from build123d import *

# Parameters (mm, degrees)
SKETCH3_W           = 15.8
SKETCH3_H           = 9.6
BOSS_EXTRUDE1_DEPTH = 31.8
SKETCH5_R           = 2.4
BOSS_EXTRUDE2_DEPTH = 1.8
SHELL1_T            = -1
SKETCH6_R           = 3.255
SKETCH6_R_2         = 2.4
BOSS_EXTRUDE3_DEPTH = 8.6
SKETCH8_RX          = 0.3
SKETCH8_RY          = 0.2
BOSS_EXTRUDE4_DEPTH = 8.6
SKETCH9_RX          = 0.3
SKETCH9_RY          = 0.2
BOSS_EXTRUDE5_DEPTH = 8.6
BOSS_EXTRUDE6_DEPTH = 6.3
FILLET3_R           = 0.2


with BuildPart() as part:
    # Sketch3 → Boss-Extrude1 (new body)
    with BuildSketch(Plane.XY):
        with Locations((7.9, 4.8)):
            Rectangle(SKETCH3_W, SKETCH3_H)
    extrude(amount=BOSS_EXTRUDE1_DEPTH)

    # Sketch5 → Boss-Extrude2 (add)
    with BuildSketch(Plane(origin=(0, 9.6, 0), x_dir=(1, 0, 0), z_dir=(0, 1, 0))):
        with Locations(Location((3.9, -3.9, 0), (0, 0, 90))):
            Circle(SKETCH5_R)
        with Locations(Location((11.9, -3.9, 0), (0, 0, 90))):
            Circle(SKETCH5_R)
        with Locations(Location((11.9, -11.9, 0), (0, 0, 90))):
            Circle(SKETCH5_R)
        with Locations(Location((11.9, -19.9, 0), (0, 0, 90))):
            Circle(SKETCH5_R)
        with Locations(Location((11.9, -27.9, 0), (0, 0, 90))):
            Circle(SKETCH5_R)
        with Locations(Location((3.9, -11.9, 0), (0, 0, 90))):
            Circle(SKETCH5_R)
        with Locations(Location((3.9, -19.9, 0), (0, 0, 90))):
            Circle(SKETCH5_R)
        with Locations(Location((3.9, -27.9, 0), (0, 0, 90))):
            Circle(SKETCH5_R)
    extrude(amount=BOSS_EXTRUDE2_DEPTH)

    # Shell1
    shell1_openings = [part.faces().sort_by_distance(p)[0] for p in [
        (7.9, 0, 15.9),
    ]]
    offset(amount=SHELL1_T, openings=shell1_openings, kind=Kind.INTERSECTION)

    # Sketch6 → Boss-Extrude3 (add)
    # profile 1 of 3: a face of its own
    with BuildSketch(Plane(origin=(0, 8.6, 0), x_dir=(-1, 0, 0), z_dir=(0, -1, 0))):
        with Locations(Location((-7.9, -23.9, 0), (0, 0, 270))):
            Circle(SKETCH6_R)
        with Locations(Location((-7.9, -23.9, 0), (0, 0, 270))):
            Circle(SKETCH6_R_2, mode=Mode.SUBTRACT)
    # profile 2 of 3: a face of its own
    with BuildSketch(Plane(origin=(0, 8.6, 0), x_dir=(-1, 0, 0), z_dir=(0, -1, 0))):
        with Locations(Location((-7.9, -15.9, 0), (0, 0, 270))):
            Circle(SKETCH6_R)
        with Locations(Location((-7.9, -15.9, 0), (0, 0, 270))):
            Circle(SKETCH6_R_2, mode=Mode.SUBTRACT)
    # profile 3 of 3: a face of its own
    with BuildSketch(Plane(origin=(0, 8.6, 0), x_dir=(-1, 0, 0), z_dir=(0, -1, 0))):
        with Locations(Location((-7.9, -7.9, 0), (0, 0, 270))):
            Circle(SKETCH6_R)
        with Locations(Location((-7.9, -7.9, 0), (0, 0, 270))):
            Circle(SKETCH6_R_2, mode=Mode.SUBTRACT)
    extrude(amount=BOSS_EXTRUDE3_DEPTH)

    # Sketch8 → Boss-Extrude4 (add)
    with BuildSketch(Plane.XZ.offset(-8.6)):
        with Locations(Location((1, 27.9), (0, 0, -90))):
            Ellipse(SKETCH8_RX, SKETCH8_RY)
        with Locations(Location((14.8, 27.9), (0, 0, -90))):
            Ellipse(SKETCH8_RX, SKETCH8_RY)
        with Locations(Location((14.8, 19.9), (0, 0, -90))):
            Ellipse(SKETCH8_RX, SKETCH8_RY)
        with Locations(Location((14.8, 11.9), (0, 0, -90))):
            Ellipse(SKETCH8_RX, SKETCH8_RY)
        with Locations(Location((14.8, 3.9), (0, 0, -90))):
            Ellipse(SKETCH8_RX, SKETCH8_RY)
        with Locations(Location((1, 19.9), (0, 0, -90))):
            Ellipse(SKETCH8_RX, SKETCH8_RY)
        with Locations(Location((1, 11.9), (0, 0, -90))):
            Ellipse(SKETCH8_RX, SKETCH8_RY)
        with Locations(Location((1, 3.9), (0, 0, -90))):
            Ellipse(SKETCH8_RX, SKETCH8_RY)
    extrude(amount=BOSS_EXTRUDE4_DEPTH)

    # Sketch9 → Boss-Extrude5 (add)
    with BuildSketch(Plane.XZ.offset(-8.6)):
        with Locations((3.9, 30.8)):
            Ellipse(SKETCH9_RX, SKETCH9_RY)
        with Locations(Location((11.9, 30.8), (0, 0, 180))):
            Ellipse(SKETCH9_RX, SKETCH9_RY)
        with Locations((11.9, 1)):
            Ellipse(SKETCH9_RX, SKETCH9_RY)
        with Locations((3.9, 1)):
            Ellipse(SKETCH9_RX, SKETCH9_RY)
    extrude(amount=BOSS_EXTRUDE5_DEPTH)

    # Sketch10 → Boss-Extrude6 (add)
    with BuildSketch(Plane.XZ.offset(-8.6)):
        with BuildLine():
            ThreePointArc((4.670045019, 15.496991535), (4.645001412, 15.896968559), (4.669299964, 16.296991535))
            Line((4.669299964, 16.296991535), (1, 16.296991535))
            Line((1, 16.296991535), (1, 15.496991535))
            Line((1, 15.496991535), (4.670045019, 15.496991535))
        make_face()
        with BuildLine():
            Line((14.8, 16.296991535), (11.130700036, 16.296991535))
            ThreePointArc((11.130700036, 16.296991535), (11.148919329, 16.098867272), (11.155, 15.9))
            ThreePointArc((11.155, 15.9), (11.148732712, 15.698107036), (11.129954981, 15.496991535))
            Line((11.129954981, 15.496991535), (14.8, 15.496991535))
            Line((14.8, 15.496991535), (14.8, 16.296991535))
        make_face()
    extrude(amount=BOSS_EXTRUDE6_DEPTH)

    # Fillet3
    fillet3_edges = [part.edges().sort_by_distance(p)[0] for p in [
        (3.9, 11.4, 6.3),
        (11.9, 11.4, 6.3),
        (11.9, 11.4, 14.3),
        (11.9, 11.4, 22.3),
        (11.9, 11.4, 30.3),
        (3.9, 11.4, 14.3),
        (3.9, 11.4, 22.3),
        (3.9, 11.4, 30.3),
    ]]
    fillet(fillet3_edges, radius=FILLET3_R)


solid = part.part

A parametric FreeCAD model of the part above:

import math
import FreeCAD as App
import Part
import Sketcher

V = App.Vector
Q = App.Units.Quantity


def edges_at(feature, points):
    """Names of the edges that pass closest to the given points."""
    edges = feature.Shape.Edges
    near = lambda p: min(range(len(edges)), key=lambda i: edges[i].distToShape(Part.Vertex(*p))[0])
    return sorted({f"Edge{near(p) + 1}" for p in points})


def faces_at(feature, points):
    """Names of the faces that lie closest to the given points."""
    faces = feature.Shape.Faces
    near = lambda p: min(range(len(faces)), key=lambda i: faces[i].distToShape(Part.Vertex(*p))[0])
    return sorted({f"Face{near(p) + 1}" for p in points})

doc = App.newDocument("Part")
body = doc.addObject("PartDesign::Body", "Body")

sketch1 = body.newObject("Sketcher::SketchObject", "Sketch")
sketch1.AttachmentSupport = (doc.getObject("XY_Plane"), [""])
sketch1.MapMode = "FlatFace"
sketch1.addGeometry(Part.LineSegment(V(0, 10, 0), V(0, 0, 0)), False)
sketch1.addGeometry(Part.LineSegment(V(0, 0, 0), V(16, 0, 0)), False)
sketch1.addGeometry(Part.LineSegment(V(16, 0, 0), V(16, 10, 0)), False)
sketch1.addGeometry(Part.LineSegment(V(16, 10, 0), V(0, 10, 0)), False)
sketch1.addConstraint(Sketcher.Constraint("Coincident", 0, 2, 1, 1))
sketch1.addConstraint(Sketcher.Constraint("Coincident", 1, 2, 2, 1))
sketch1.addConstraint(Sketcher.Constraint("Coincident", 2, 2, 3, 1))
sketch1.addConstraint(Sketcher.Constraint("Coincident", 3, 2, 0, 1))
sketch1.addConstraint(Sketcher.Constraint("Vertical", 0))
sketch1.addConstraint(Sketcher.Constraint("Horizontal", 1))
sketch1.addConstraint(Sketcher.Constraint("Vertical", 2))
sketch1.addConstraint(Sketcher.Constraint("Horizontal", 3))
sketch1.addConstraint(Sketcher.Constraint("Coincident", 0, 2, -1, 1))
sketch1.addConstraint(Sketcher.Constraint("DistanceX", 1, 1, 1, 2, Q("15.8 mm")))
sketch1.addConstraint(Sketcher.Constraint("DistanceY", 0, 2, 0, 1, Q("9.6 mm")))
pad1 = body.newObject("PartDesign::Pad", "Pad")
pad1.Profile = sketch1
pad1.Length = 31.8

sketch2 = body.newObject("Sketcher::SketchObject", "Sketch001")
sketch2.AttachmentSupport = (doc.getObject("XZ_Plane"), [""])
sketch2.MapMode = "FlatFace"
sketch2.AttachmentOffset = App.Placement(V(0, 0, -9.6), App.Rotation())
sketch2.addGeometry(Part.Circle(V(3.9, 3.9, 0), V(0, 0, 1), 2.4), False)
sketch2.addGeometry(Part.Circle(V(11.9, 3.9, 0), V(0, 0, 1), 2.4), False)
sketch2.addGeometry(Part.Circle(V(11.9, 11.9, 0), V(0, 0, 1), 2.4), False)
sketch2.addGeometry(Part.Circle(V(11.9, 19.9, 0), V(0, 0, 1), 2.4), False)
sketch2.addGeometry(Part.Circle(V(11.9, 27.9, 0), V(0, 0, 1), 2.4), False)
sketch2.addGeometry(Part.Circle(V(3.9, 11.9, 0), V(0, 0, 1), 2.4), False)
sketch2.addGeometry(Part.Circle(V(3.9, 19.9, 0), V(0, 0, 1), 2.4), False)
sketch2.addGeometry(Part.Circle(V(3.9, 27.9, 0), V(0, 0, 1), 2.4), False)
sketch2.addConstraint(Sketcher.Constraint("Equal", 0, 1))
sketch2.addConstraint(Sketcher.Constraint("Equal", 1, 2))
sketch2.addConstraint(Sketcher.Constraint("Equal", 2, 3))
sketch2.addConstraint(Sketcher.Constraint("Equal", 3, 4))
sketch2.addConstraint(Sketcher.Constraint("Equal", 4, 5))
sketch2.addConstraint(Sketcher.Constraint("Equal", 5, 6))
sketch2.addConstraint(Sketcher.Constraint("Equal", 6, 7))
sketch2.addConstraint(Sketcher.Constraint("Horizontal", 0, 3, 1, 3))
sketch2.addConstraint(Sketcher.Constraint("Horizontal", 2, 3, 5, 3))
sketch2.addConstraint(Sketcher.Constraint("Horizontal", 3, 3, 6, 3))
sketch2.addConstraint(Sketcher.Constraint("Horizontal", 4, 3, 7, 3))
sketch2.addConstraint(Sketcher.Constraint("Vertical", 1, 3, 2, 3))
sketch2.addConstraint(Sketcher.Constraint("Vertical", 2, 3, 3, 3))
sketch2.addConstraint(Sketcher.Constraint("Vertical", 3, 3, 4, 3))
sketch2.addConstraint(Sketcher.Constraint("Vertical", 0, 3, 5, 3))
sketch2.addConstraint(Sketcher.Constraint("Vertical", 5, 3, 6, 3))
sketch2.addConstraint(Sketcher.Constraint("Vertical", 6, 3, 7, 3))
sketch2.addConstraint(Sketcher.Constraint("Diameter", 0, Q("4.8 mm")))
sketch2.addConstraint(Sketcher.Constraint("DistanceX", 0, 3, 1, 3, Q("8 mm")))
sketch2.addConstraint(Sketcher.Constraint("DistanceY", 1, 3, 2, 3, Q("8 mm")))
sketch2.addConstraint(Sketcher.Constraint("DistanceY", 2, 3, 3, 3, Q("8 mm")))
sketch2.addConstraint(Sketcher.Constraint("DistanceY", 3, 3, 4, 3, Q("8 mm")))
sketch2.addConstraint(Sketcher.Constraint("DistanceX", -1, 1, 0, 3, Q("3.9 mm")))
sketch2.addConstraint(Sketcher.Constraint("DistanceY", -1, 1, 0, 3, Q("3.9 mm")))
pad2 = body.newObject("PartDesign::Pad", "Pad001")
pad2.Profile = sketch2
pad2.Length = 1.8
pad2.Reversed = True
doc.recompute()

thickness = body.newObject("PartDesign::Thickness", "Thickness")
thickness.Base = (pad2, faces_at(pad2, [(7.9, 0, 15.9)]))
thickness.Value = 1
thickness.Reversed = True
thickness.Join = "Intersection"

sketch3 = body.newObject("Sketcher::SketchObject", "Sketch002")
sketch3.AttachmentSupport = (doc.getObject("XZ_Plane"), [""])
sketch3.MapMode = "FlatFace"
sketch3.AttachmentOffset = App.Placement(V(0, 0, -8.6), App.Rotation())
sketch3.addGeometry(Part.Circle(V(7.9, 23.9, 0), V(0, 0, 1), 3.3), False)
sketch3.addGeometry(Part.Circle(V(7.9, 23.9, 0), V(0, 0, 1), 2.4), False)
sketch3.addGeometry(Part.Circle(V(7.9, 15.9, 0), V(0, 0, 1), 3.3), False)
sketch3.addGeometry(Part.Circle(V(7.9, 15.9, 0), V(0, 0, 1), 2.4), False)
sketch3.addGeometry(Part.Circle(V(7.9, 7.9, 0), V(0, 0, 1), 3.3), False)
sketch3.addGeometry(Part.Circle(V(7.9, 7.9, 0), V(0, 0, 1), 2.4), False)
sketch3.addConstraint(Sketcher.Constraint("Coincident", 1, 3, 0, 3))
sketch3.addConstraint(Sketcher.Constraint("Coincident", 3, 3, 2, 3))
sketch3.addConstraint(Sketcher.Constraint("Coincident", 5, 3, 4, 3))
sketch3.addConstraint(Sketcher.Constraint("Equal", 0, 2))
sketch3.addConstraint(Sketcher.Constraint("Equal", 1, 3))
sketch3.addConstraint(Sketcher.Constraint("Equal", 2, 4))
sketch3.addConstraint(Sketcher.Constraint("Equal", 3, 5))
sketch3.addConstraint(Sketcher.Constraint("Vertical", 1, 3, 2, 3))
sketch3.addConstraint(Sketcher.Constraint("Vertical", 3, 3, 4, 3))
sketch3.addConstraint(Sketcher.Constraint("Diameter", 1, Q("4.8 mm")))
sketch3.addConstraint(Sketcher.Constraint("Diameter", 0, Q("6.51 mm")))
sketch3.addConstraint(Sketcher.Constraint("DistanceY", 2, 3, 0, 3, Q("8 mm")))
sketch3.addConstraint(Sketcher.Constraint("DistanceY", 4, 3, 2, 3, Q("8 mm")))
sketch3.addConstraint(Sketcher.Constraint("DistanceX", -1, 1, 0, 3, Q("7.9 mm")))
sketch3.addConstraint(Sketcher.Constraint("DistanceY", -1, 1, 0, 3, Q("23.9 mm")))
pad3 = body.newObject("PartDesign::Pad", "Pad002")
pad3.Profile = sketch3
pad3.Length = 8.6

sketch4 = body.newObject("Sketcher::SketchObject", "Sketch003")
sketch4.AttachmentSupport = (doc.getObject("XZ_Plane"), [""])
sketch4.MapMode = "FlatFace"
sketch4.AttachmentOffset = App.Placement(V(0, 0, -8.6), App.Rotation())
sketch4.addGeometry(Part.Ellipse(V(1, 27.6, 0), V(1.2, 27.9, 0), V(1, 27.9, 0)), False)
sketch4.addGeometry(Part.Ellipse(V(14.8, 27.6, 0), V(15, 27.9, 0), V(14.8, 27.9, 0)), False)
sketch4.addGeometry(Part.Ellipse(V(14.8, 19.6, 0), V(15, 19.9, 0), V(14.8, 19.9, 0)), False)
sketch4.addGeometry(Part.Ellipse(V(14.8, 11.6, 0), V(15, 11.9, 0), V(14.8, 11.9, 0)), False)
sketch4.addGeometry(Part.Ellipse(V(14.8, 3.6, 0), V(15, 3.9, 0), V(14.8, 3.9, 0)), False)
sketch4.addGeometry(Part.Ellipse(V(1, 19.6, 0), V(1.2, 19.9, 0), V(1, 19.9, 0)), False)
sketch4.addGeometry(Part.Ellipse(V(1, 11.6, 0), V(1.2, 11.9, 0), V(1, 11.9, 0)), False)
sketch4.addGeometry(Part.Ellipse(V(1, 3.6, 0), V(1.2, 3.9, 0), V(1, 3.9, 0)), False)
sketch4.addConstraint(Sketcher.Constraint("Block", 0))
sketch4.addConstraint(Sketcher.Constraint("Block", 1))
sketch4.addConstraint(Sketcher.Constraint("Block", 2))
sketch4.addConstraint(Sketcher.Constraint("Block", 3))
sketch4.addConstraint(Sketcher.Constraint("Block", 4))
sketch4.addConstraint(Sketcher.Constraint("Block", 5))
sketch4.addConstraint(Sketcher.Constraint("Block", 6))
sketch4.addConstraint(Sketcher.Constraint("Block", 7))
pad4 = body.newObject("PartDesign::Pad", "Pad003")
pad4.Profile = sketch4
pad4.Length = 8.6

sketch5 = body.newObject("Sketcher::SketchObject", "Sketch004")
sketch5.AttachmentSupport = (doc.getObject("XZ_Plane"), [""])
sketch5.MapMode = "FlatFace"
sketch5.AttachmentOffset = App.Placement(V(0, 0, -8.6), App.Rotation())
sketch5.addGeometry(Part.Ellipse(V(4.2, 30.8, 0), V(3.9, 31, 0), V(3.9, 30.8, 0)), False)
sketch5.addGeometry(Part.Ellipse(V(11.6, 30.8, 0), V(11.9, 30.6, 0), V(11.9, 30.8, 0)), False)
sketch5.addGeometry(Part.Ellipse(V(12.2, 1, 0), V(11.9, 1.2, 0), V(11.9, 1, 0)), False)
sketch5.addGeometry(Part.Ellipse(V(4.2, 1, 0), V(3.9, 1.2, 0), V(3.9, 1, 0)), False)
sketch5.addConstraint(Sketcher.Constraint("Block", 0))
sketch5.addConstraint(Sketcher.Constraint("Block", 1))
sketch5.addConstraint(Sketcher.Constraint("Block", 2))
sketch5.addConstraint(Sketcher.Constraint("Block", 3))
pad5 = body.newObject("PartDesign::Pad", "Pad004")
pad5.Profile = sketch5
pad5.Length = 8.6

sketch6 = body.newObject("Sketcher::SketchObject", "Sketch005")
sketch6.AttachmentSupport = (doc.getObject("XZ_Plane"), [""])
sketch6.MapMode = "FlatFace"
sketch6.AttachmentOffset = App.Placement(V(0, 0, -8.6), App.Rotation())
sketch6.addGeometry(Part.ArcOfCircle(Part.Circle(V(7.9, 15.9, 0), V(0, 0, 1), 3.26), math.radians(172.99), math.radians(187.11)), False)
sketch6.addGeometry(Part.LineSegment(V(4.67, 16.3, 0), V(1, 16.3, 0)), False)
sketch6.addGeometry(Part.LineSegment(V(1, 16.3, 0), V(1, 15.5, 0)), False)
sketch6.addGeometry(Part.LineSegment(V(1, 15.5, 0), V(4.67, 15.5, 0)), False)
sketch6.addGeometry(Part.LineSegment(V(14.8, 16.3, 0), V(11.13, 16.3, 0)), False)
sketch6.addGeometry(Part.ArcOfCircle(Part.Circle(V(7.9, 15.9, 0), V(0, 0, 1), 3.26), math.radians(0), math.radians(7.01)), False)
sketch6.addGeometry(Part.ArcOfCircle(Part.Circle(V(7.9, 15.9, 0), V(0, 0, 1), 3.25), math.radians(-7.11), math.radians(0)), False)
sketch6.addGeometry(Part.LineSegment(V(11.13, 15.5, 0), V(14.8, 15.5, 0)), False)
sketch6.addGeometry(Part.LineSegment(V(14.8, 15.5, 0), V(14.8, 16.3, 0)), False)
sketch6.addConstraint(Sketcher.Constraint("Coincident", 0, 1, 1, 1))
sketch6.addConstraint(Sketcher.Constraint("Coincident", 1, 2, 2, 1))
sketch6.addConstraint(Sketcher.Constraint("Coincident", 2, 2, 3, 1))
sketch6.addConstraint(Sketcher.Constraint("Coincident", 3, 2, 0, 2))
sketch6.addConstraint(Sketcher.Constraint("Coincident", 4, 2, 5, 2))
sketch6.addConstraint(Sketcher.Constraint("Tangent", 5, 1, 6, 2))
sketch6.addConstraint(Sketcher.Constraint("Coincident", 6, 1, 7, 1))
sketch6.addConstraint(Sketcher.Constraint("Coincident", 7, 2, 8, 1))
sketch6.addConstraint(Sketcher.Constraint("Coincident", 8, 2, 4, 1))
sketch6.addConstraint(Sketcher.Constraint("Horizontal", 1))
sketch6.addConstraint(Sketcher.Constraint("Vertical", 2))
sketch6.addConstraint(Sketcher.Constraint("Horizontal", 3))
sketch6.addConstraint(Sketcher.Constraint("Horizontal", 4))
sketch6.addConstraint(Sketcher.Constraint("Horizontal", 7))
sketch6.addConstraint(Sketcher.Constraint("Vertical", 8))
sketch6.addConstraint(Sketcher.Constraint("Coincident", 5, 3, 0, 3))
sketch6.addConstraint(Sketcher.Constraint("Equal", 0, 5))
sketch6.addConstraint(Sketcher.Constraint("Equal", 5, 6))
sketch6.addConstraint(Sketcher.Constraint("Horizontal", 1, 2, 4, 2))
sketch6.addConstraint(Sketcher.Constraint("Horizontal", 6, 3, 5, 1))
sketch6.addConstraint(Sketcher.Constraint("Horizontal", 3, 2, 6, 1))
sketch6.addConstraint(Sketcher.Constraint("Equal", 1, 4))
sketch6.addConstraint(Sketcher.Constraint("DistanceY", 2, 2, 2, 1, Q("0.8 mm")))
sketch6.addConstraint(Sketcher.Constraint("DistanceX", -1, 1, 1, 2, Q("1 mm")))
sketch6.addConstraint(Sketcher.Constraint("Radius", 0, Q("3.255 mm")))
sketch6.addConstraint(Sketcher.Constraint("DistanceX", -1, 1, 0, 3, Q("7.9 mm")))
sketch6.addConstraint(Sketcher.Constraint("DistanceY", -1, 1, 0, 3, Q("15.9 mm")))
sketch6.addConstraint(Sketcher.Constraint("DistanceX", 1, 2, 1, 1, Q("3.6693 mm")))
pad6 = body.newObject("PartDesign::Pad", "Pad005")
pad6.Profile = sketch6
pad6.Length = 6.3
doc.recompute()

fillet = body.newObject("PartDesign::Fillet", "Fillet")
fillet.Base = (pad6, edges_at(pad6, [
    (3.9, 11.4, 6.3),
    (11.9, 11.4, 6.3),
    (11.9, 11.4, 14.3),
    (11.9, 11.4, 22.3),
    (11.9, 11.4, 30.3),
    (3.9, 11.4, 14.3),
    (3.9, 11.4, 22.3),
    (3.9, 11.4, 30.3),
]))
fillet.Radius = 0.2

doc.recompute()
